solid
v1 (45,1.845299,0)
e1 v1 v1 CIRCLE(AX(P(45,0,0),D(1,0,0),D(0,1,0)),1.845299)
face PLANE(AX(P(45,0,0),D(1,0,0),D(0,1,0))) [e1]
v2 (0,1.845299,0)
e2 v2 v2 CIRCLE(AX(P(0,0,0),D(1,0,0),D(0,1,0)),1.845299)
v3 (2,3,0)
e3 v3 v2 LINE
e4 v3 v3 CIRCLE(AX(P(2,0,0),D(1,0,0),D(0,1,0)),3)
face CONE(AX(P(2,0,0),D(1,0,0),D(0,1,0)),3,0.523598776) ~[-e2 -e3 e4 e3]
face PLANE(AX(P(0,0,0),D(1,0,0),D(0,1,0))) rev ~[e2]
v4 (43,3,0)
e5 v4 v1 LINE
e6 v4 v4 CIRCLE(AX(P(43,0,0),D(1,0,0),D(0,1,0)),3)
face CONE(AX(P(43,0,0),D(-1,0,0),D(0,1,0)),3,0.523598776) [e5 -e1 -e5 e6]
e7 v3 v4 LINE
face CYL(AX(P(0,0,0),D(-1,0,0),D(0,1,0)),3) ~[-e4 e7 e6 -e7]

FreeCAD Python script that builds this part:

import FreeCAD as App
import Part
import Sketcher
from FreeCAD import Vector


def edges_at(feature, points):
    """Names of the edges that pass closest to the given points."""
    edges = feature.Shape.Edges
    near = lambda p: min(range(len(edges)), key=lambda i: edges[i].distToShape(Part.Vertex(*p))[0])
    return sorted({f"Edge{near(p) + 1}" for p in points})

doc = App.newDocument("Part")
body = doc.addObject("PartDesign::Body", "Body")

# Sketch on YZ plane
sketch1 = body.newObject("Sketcher::SketchObject", "Sketch")
sketch1.AttachmentSupport = (doc.getObject("YZ_Plane"), [""])
sketch1.MapMode = "FlatFace"
sketch1.addGeometry(Part.Circle(Vector(0, 0, 0), Vector(0, 0, 1), 3), False)
sketch1.addConstraint([
    Sketcher.Constraint("Coincident", 0, 3, -1, 1),
    Sketcher.Constraint("Diameter", 0, 6.0),
])
pad1 = body.newObject("PartDesign::Pad", "Pad")
pad1.Profile = sketch1
pad1.Length = 45
doc.recompute()

chamfer = body.newObject("PartDesign::Chamfer", "Chamfer")
chamfer.Base = (pad1, edges_at(pad1, [(0, -3, 0)]))
chamfer.ChamferType = "Distance and Angle"
chamfer.Size = 2
chamfer.Angle = 30
doc.recompute()

chamfer2 = body.newObject("PartDesign::Chamfer", "Chamfer001")
chamfer2.Base = (chamfer, edges_at(chamfer, [(45, -3, 0)]))
chamfer2.ChamferType = "Distance and Angle"
chamfer2.Size = 2
chamfer2.Angle = 30

doc.recompute()
